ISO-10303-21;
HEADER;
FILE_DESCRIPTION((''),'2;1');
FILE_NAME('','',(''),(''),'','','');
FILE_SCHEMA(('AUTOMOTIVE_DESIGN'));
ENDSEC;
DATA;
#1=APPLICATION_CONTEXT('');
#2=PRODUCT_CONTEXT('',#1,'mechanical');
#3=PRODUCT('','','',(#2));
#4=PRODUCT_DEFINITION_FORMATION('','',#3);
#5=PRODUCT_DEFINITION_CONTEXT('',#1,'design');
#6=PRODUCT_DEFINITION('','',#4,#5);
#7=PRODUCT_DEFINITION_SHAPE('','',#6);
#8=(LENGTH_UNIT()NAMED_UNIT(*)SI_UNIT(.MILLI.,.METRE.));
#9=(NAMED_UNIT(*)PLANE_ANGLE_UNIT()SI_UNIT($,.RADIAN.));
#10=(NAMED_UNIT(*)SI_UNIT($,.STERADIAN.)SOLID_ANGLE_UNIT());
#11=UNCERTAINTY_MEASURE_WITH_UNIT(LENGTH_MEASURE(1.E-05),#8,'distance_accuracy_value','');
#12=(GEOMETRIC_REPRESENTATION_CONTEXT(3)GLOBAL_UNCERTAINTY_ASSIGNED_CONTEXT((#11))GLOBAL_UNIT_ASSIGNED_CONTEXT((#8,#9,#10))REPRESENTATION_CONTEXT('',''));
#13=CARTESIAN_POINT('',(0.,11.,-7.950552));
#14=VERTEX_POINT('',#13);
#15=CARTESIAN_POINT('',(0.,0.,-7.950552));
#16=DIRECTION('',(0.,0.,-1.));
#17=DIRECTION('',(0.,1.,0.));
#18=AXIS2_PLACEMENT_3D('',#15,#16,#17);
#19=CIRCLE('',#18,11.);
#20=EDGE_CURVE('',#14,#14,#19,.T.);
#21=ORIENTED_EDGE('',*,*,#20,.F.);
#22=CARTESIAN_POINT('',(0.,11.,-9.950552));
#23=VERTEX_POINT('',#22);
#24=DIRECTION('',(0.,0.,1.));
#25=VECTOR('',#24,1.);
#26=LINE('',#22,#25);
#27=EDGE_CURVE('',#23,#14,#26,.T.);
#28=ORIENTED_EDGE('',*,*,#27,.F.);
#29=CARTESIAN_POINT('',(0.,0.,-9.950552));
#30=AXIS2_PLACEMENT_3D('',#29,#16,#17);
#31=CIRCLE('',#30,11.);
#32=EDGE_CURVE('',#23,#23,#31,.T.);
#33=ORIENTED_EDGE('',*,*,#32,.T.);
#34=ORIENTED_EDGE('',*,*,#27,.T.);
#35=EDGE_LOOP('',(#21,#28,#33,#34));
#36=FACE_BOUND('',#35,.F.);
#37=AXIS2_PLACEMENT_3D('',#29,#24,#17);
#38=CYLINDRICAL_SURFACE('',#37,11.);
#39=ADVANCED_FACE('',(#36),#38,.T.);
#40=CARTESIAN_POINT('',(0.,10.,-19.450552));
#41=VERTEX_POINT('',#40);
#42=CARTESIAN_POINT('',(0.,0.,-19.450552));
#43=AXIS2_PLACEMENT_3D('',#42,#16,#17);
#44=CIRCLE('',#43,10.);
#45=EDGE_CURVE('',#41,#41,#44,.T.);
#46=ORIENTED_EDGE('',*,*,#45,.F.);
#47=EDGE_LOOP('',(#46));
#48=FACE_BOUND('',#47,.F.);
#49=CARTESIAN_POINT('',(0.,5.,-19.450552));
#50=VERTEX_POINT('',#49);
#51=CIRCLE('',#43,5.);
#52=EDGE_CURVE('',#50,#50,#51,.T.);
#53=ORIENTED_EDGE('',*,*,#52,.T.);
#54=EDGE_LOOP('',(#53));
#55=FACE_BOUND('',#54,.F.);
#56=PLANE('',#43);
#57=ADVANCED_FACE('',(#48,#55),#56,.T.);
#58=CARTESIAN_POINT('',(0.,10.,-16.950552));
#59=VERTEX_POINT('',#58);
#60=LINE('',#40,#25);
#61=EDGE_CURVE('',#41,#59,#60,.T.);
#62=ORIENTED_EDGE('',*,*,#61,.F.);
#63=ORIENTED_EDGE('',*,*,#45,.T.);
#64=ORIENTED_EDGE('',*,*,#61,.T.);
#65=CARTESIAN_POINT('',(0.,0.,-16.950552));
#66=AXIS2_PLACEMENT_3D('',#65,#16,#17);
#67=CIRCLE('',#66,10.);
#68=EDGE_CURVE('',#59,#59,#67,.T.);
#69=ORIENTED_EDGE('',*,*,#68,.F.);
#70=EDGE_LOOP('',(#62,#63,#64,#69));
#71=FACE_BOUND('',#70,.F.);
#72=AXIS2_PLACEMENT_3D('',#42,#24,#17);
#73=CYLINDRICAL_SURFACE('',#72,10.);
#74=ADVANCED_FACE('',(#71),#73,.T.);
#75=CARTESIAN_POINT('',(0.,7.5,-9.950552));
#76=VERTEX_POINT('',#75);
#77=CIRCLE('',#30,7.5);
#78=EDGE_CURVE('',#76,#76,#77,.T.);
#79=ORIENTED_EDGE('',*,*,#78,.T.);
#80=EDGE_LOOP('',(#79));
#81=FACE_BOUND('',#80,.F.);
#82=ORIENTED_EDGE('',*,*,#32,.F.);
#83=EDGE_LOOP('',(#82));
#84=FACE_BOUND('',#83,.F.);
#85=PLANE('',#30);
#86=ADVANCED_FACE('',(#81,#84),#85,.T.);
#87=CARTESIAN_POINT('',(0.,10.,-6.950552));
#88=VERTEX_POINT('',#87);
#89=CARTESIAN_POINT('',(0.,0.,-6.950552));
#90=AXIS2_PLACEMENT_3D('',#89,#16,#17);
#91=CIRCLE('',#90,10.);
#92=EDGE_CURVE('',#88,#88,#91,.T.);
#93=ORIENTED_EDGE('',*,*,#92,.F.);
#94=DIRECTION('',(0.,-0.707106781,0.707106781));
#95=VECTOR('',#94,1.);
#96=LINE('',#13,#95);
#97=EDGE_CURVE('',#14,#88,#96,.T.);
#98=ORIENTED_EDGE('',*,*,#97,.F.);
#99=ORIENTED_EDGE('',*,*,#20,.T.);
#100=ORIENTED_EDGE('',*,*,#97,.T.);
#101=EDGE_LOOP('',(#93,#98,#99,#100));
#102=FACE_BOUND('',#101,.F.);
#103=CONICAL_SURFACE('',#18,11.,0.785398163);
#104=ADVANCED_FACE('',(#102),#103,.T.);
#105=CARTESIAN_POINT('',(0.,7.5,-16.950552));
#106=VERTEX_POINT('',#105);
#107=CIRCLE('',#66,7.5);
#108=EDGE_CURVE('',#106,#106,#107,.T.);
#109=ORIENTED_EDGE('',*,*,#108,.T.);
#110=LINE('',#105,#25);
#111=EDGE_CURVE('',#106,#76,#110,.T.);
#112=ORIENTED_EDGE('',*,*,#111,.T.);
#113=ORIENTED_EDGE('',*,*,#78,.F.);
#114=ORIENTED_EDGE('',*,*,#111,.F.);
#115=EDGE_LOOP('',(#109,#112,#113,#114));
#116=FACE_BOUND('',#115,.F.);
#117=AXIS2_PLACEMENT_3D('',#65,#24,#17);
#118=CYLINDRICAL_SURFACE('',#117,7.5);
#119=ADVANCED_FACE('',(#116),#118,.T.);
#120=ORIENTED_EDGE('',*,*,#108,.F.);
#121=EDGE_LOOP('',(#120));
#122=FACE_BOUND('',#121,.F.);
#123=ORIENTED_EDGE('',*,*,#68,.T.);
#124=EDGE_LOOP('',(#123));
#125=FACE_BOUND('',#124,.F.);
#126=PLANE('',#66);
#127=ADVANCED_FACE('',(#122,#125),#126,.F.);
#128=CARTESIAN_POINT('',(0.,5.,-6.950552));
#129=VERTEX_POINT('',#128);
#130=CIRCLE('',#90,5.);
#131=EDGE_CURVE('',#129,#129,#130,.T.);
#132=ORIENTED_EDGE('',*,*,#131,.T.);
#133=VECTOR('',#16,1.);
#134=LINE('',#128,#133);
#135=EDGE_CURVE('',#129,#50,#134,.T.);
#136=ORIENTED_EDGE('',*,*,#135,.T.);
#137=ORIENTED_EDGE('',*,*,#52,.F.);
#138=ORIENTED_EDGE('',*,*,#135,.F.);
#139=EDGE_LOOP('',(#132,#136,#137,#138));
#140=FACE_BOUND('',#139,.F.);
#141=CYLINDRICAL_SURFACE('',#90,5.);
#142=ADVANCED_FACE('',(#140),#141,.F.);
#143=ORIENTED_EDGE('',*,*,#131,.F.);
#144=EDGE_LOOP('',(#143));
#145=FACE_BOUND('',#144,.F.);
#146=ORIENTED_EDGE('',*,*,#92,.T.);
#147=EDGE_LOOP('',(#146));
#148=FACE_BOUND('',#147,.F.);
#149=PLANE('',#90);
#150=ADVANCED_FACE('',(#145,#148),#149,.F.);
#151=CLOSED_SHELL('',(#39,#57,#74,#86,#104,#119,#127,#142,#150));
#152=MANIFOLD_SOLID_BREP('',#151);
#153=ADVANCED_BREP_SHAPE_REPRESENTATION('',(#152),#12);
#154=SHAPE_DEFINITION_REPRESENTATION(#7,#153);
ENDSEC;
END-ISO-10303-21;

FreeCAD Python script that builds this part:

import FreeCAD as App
import Part
import Sketcher

V = App.Vector
Q = App.Units.Quantity


def edges_at(feature, points):
    """Names of the edges that pass closest to the given points."""
    edges = feature.Shape.Edges
    near = lambda p: min(range(len(edges)), key=lambda i: edges[i].distToShape(Part.Vertex(*p))[0])
    return sorted({f"Edge{near(p) + 1}" for p in points})


def add_polygon(sketch, points):
    """Adds a closed chain of lines whose ends are joined by coincident constraints."""
    first, n = sketch.GeometryCount, len(points)
    for a, b in zip(points, points[1:] + points[:1]):
        sketch.addGeometry(Part.LineSegment(App.Vector(*a, 0), App.Vector(*b, 0)), False)
    for i in range(n):
        sketch.addConstraint(Sketcher.Constraint("Coincident", first + i, 2, first + (i + 1) % n, 1))

doc = App.newDocument("Part")
params = doc.addObject("Spreadsheet::Sheet", "Params")
for row, (alias, value) in enumerate([
    ("sketch1_width", "5 mm"),
    ("sketch1_width2", "6 mm"),
    ("sketch1_height", "7 mm"),
    ("sketch1_height2", "3 mm"),
    ("sketch1_width3", "2.5 mm"),
    ("revolution_angle", "360 deg"),
    ("chamfer_size", "1 mm"),
], start=1):
    params.set(f"A{row}", alias)
    params.set(f"B{row}", "=" + value)
    params.setAlias(f"B{row}", alias)

body = doc.addObject("PartDesign::Body", "Body")

# Sketch on YZ plane
sketch1 = doc.addObject("Sketcher::SketchObject", "Sketch")
body.addObject(sketch1)
sketch1.AttachmentSupport = (doc.YZ_Plane, [""])
sketch1.MapMode = "FlatFace"
add_polygon(sketch1, [(5, -7), (5, -19.5), (10, -19.5), (10, -17), (7.5, -17), (7.5, -10), (11, -10), (11, -7)])  # lines 0-7
sketch1.addConstraint([
    Sketcher.Constraint("Vertical", 0),
    Sketcher.Constraint("Horizontal", 1),
    Sketcher.Constraint("Vertical", 2),
    Sketcher.Constraint("Horizontal", 3),
    Sketcher.Constraint("Vertical", 4),
    Sketcher.Constraint("Horizontal", 5),
    Sketcher.Constraint("Vertical", 6),
    Sketcher.Constraint("Horizontal", 7),
    Sketcher.Constraint("Equal", 3, 2),
    Sketcher.Constraint("DistanceX", 1, 1, 1, 2, Q("5 mm")),
    Sketcher.Constraint("DistanceX", 7, 2, 7, 1, Q("6 mm")),
    Sketcher.Constraint("DistanceY", 4, 1, 4, 2, Q("7 mm")),
    Sketcher.Constraint("DistanceY", 6, 1, 6, 2, Q("3 mm")),
    Sketcher.Constraint("DistanceX", 3, 2, 3, 1, Q("2.5 mm")),
    Sketcher.Constraint("DistanceX", -1, 1, 0, 2, Q("5 mm")),
    Sketcher.Constraint("DistanceY", 0, 2, -1, 1, Q("19.450552 mm")),
])
sketch1.setExpression("Constraints[17]", "Params.sketch1_width")
sketch1.setExpression("Constraints[18]", "Params.sketch1_width2")
sketch1.setExpression("Constraints[19]", "Params.sketch1_height")
sketch1.setExpression("Constraints[20]", "Params.sketch1_height2")
sketch1.setExpression("Constraints[21]", "Params.sketch1_width3")
revolution = doc.addObject("PartDesign::Revolution", "Revolution")
body.addObject(revolution)
revolution.Profile = sketch1
revolution.ReferenceAxis = (sketch1, ["V_Axis"])
revolution.setExpression("Angle", "Params.revolution_angle")
doc.recompute()

chamfer = doc.addObject("PartDesign::Chamfer", "Chamfer")
body.addObject(chamfer)
chamfer.Base = (revolution, edges_at(revolution, [(0, -11, -6.951)]))
chamfer.setExpression("Size", "Params.chamfer_size")

doc.recompute()
